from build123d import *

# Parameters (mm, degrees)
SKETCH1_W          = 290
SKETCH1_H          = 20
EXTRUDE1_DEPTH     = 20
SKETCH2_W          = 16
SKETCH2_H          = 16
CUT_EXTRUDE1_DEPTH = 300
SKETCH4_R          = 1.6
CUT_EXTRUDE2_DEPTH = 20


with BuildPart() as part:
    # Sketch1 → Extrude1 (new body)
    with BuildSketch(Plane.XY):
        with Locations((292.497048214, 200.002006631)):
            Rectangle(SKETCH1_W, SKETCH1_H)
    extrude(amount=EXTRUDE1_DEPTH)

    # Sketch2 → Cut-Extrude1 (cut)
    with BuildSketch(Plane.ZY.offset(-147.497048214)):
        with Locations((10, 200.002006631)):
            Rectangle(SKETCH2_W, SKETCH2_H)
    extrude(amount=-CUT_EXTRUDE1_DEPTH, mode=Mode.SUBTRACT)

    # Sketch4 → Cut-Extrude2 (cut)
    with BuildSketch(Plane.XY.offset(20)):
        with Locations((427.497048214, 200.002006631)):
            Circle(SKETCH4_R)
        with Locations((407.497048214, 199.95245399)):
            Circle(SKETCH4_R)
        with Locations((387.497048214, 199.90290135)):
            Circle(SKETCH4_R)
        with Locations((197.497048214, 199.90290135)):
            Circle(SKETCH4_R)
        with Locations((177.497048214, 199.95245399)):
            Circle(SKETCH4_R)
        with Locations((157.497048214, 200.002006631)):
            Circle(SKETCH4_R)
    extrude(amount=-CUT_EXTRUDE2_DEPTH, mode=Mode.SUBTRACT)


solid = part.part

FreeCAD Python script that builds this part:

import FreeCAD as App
import Part
import Sketcher
from FreeCAD import Vector
Q = App.Units.Quantity

doc = App.newDocument("Part")
body = doc.addObject("PartDesign::Body", "Body")

sketch1 = body.newObject("Sketcher::SketchObject", "Sketch")
sketch1.AttachmentSupport = (doc.getObject("XY_Plane"), [""])
sketch1.MapMode = "FlatFace"
sketch1.addGeometry(Part.LineSegment(Vector(147, 210, 0), Vector(147, 190, 0)), False)
sketch1.addGeometry(Part.LineSegment(Vector(147, 190, 0), Vector(437, 190, 0)), False)
sketch1.addGeometry(Part.LineSegment(Vector(437, 190, 0), Vector(437, 210, 0)), False)
sketch1.addGeometry(Part.LineSegment(Vector(437, 210, 0), Vector(147, 210, 0)), False)
sketch1.addConstraint(Sketcher.Constraint("Coincident", 0, 2, 1, 1))
sketch1.addConstraint(Sketcher.Constraint("Coincident", 1, 2, 2, 1))
sketch1.addConstraint(Sketcher.Constraint("Coincident", 2, 2, 3, 1))
sketch1.addConstraint(Sketcher.Constraint("Coincident", 3, 2, 0, 1))
sketch1.addConstraint(Sketcher.Constraint("Vertical", 0))
sketch1.addConstraint(Sketcher.Constraint("Horizontal", 1))
sketch1.addConstraint(Sketcher.Constraint("Vertical", 2))
sketch1.addConstraint(Sketcher.Constraint("Horizontal", 3))
sketch1.addConstraint(Sketcher.Constraint("DistanceX", 1, 1, 1, 2, Q("290 mm")))
sketch1.addConstraint(Sketcher.Constraint("DistanceY", 0, 2, 0, 1, Q("20 mm")))
sketch1.addConstraint(Sketcher.Constraint("DistanceX", -1, 1, 0, 2, Q("147.497048 mm")))
sketch1.addConstraint(Sketcher.Constraint("DistanceY", -1, 1, 0, 2, Q("190.002007 mm")))
pad1 = body.newObject("PartDesign::Pad", "Pad")
pad1.Profile = sketch1
pad1.Length = 20

sketch2 = body.newObject("Sketcher::SketchObject", "Sketch001")
sketch2.AttachmentSupport = (doc.getObject("YZ_Plane"), [""])
sketch2.MapMode = "FlatFace"
sketch2.AttachmentOffset = App.Placement(Vector(0, 0, 147.497048), App.Rotation())
sketch2.addGeometry(Part.LineSegment(Vector(208, 2, 0), Vector(192, 2, 0)), False)
sketch2.addGeometry(Part.LineSegment(Vector(192, 2, 0), Vector(192, 18, 0)), False)
sketch2.addGeometry(Part.LineSegment(Vector(192, 18, 0), Vector(208, 18, 0)), False)
sketch2.addGeometry(Part.LineSegment(Vector(208, 18, 0), Vector(208, 2, 0)), False)
sketch2.addConstraint(Sketcher.Constraint("Coincident", 0, 2, 1, 1))
sketch2.addConstraint(Sketcher.Constraint("Coincident", 1, 2, 2, 1))
sketch2.addConstraint(Sketcher.Constraint("Coincident", 2, 2, 3, 1))
sketch2.addConstraint(Sketcher.Constraint("Coincident", 3, 2, 0, 1))
sketch2.addConstraint(Sketcher.Constraint("Horizontal", 0))
sketch2.addConstraint(Sketcher.Constraint("Vertical", 1))
sketch2.addConstraint(Sketcher.Constraint("Horizontal", 2))
sketch2.addConstraint(Sketcher.Constraint("Vertical", 3))
sketch2.addConstraint(Sketcher.Constraint("Equal", 2, 1))
sketch2.addConstraint(Sketcher.Constraint("DistanceX", 0, 2, 0, 1, Q("16 mm")))
sketch2.addConstraint(Sketcher.Constraint("DistanceY", -1, 1, 0, 2, Q("2 mm")))
sketch2.addConstraint(Sketcher.Constraint("DistanceX", -1, 1, 0, 2, Q("192.002007 mm")))
pocket1 = body.newObject("PartDesign::Pocket", "Pocket")
pocket1.Profile = sketch2
pocket1.Length = 300
pocket1.Reversed = True

sketch3 = body.newObject("Sketcher::SketchObject", "Sketch002")
sketch3.AttachmentSupport = (doc.getObject("XY_Plane"), [""])
sketch3.MapMode = "FlatFace"
sketch3.AttachmentOffset = App.Placement(Vector(0, 0, 20), App.Rotation())
sketch3.addGeometry(Part.Circle(Vector(427.5, 200, 0), Vector(0, 0, 1), 1.6), False)
sketch3.addGeometry(Part.Circle(Vector(407.5, 200, 0), Vector(0, 0, 1), 1.6), False)
sketch3.addGeometry(Part.Circle(Vector(387.5, 199.9, 0), Vector(0, 0, 1), 1.6), False)
sketch3.addGeometry(Part.Circle(Vector(197.5, 199.9, 0), Vector(0, 0, 1), 1.6), False)
sketch3.addGeometry(Part.Circle(Vector(177.5, 200, 0), Vector(0, 0, 1), 1.6), False)
sketch3.addGeometry(Part.Circle(Vector(157.5, 200, 0), Vector(0, 0, 1), 1.6), False)
sketch3.addConstraint(Sketcher.Constraint("Equal", 0, 1))
sketch3.addConstraint(Sketcher.Constraint("Equal", 1, 2))
sketch3.addConstraint(Sketcher.Constraint("Equal", 2, 3))
sketch3.addConstraint(Sketcher.Constraint("Equal", 3, 4))
sketch3.addConstraint(Sketcher.Constraint("Equal", 4, 5))
sketch3.addConstraint(Sketcher.Constraint("Horizontal", 2, 3, 3, 3))
sketch3.addConstraint(Sketcher.Constraint("Horizontal", 1, 3, 4, 3))
sketch3.addConstraint(Sketcher.Constraint("Horizontal", 0, 3, 5, 3))
sketch3.addConstraint(Sketcher.Constraint("Diameter", 0, Q("3.2 mm")))
sketch3.addConstraint(Sketcher.Constraint("DistanceX", 1, 3, 0, 3, Q("20 mm")))
sketch3.addConstraint(Sketcher.Constraint("DistanceX", 2, 3, 1, 3, Q("20 mm")))
sketch3.addConstraint(Sketcher.Constraint("DistanceX", 3, 3, 2, 3, Q("190 mm")))
sketch3.addConstraint(Sketcher.Constraint("DistanceX", 4, 3, 3, 3, Q("20 mm")))
sketch3.addConstraint(Sketcher.Constraint("DistanceX", 5, 3, 4, 3, Q("20 mm")))
sketch3.addConstraint(Sketcher.Constraint("DistanceY", -1, 1, 2, 3, Q("199.902901 mm")))
sketch3.addConstraint(Sketcher.Constraint("DistanceX", -1, 1, 0, 3, Q("427.497048 mm")))
sketch3.addConstraint(Sketcher.Constraint("DistanceY", -1, 1, 0, 3, Q("200.002007 mm")))
sketch3.addConstraint(Sketcher.Constraint("DistanceY", -1, 1, 1, 3, Q("199.952454 mm")))
pocket2 = body.newObject("PartDesign::Pocket", "Pocket001")
pocket2.Profile = sketch3
pocket2.Length = 20

doc.recompute()
